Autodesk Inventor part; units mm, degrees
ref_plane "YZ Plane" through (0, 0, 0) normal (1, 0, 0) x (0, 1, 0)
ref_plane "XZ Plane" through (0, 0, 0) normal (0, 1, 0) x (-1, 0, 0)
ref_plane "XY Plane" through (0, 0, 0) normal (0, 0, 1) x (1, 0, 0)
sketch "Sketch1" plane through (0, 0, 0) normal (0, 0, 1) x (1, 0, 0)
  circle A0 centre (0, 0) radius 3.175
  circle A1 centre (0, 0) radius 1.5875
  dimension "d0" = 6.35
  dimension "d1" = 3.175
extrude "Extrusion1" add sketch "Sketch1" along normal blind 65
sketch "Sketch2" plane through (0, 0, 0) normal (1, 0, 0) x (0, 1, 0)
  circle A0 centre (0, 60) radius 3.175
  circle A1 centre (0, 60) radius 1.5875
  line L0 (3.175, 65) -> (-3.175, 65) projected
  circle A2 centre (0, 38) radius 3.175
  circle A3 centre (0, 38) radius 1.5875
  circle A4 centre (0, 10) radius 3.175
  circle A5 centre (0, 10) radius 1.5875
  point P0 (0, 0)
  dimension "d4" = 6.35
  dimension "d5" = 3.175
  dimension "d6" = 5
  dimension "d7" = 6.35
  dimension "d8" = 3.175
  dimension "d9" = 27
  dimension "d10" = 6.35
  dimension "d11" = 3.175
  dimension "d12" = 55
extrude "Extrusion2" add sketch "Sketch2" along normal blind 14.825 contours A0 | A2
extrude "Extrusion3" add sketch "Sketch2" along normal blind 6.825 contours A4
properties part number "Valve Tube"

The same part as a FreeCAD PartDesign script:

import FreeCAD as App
import Part
import Sketcher
from FreeCAD import Vector
Q = App.Units.Quantity

doc = App.newDocument("Part")
body = doc.addObject("PartDesign::Body", "Body")

# Sketch on XY plane
sketch1 = doc.addObject("Sketcher::SketchObject", "Sketch")
body.addObject(sketch1)
sketch1.AttachmentSupport = (doc.XY_Plane, [""])
sketch1.MapMode = "FlatFace"
sketch1.addGeometry(Part.Circle(Vector(0, 0, 0), Vector(0, 0, 1), 3.175), False)
sketch1.addGeometry(Part.Circle(Vector(0, 0, 0), Vector(0, 0, 1), 1.5875), False)
sketch1.addConstraint(Sketcher.Constraint("Coincident", 0, 3, -1, 1))
sketch1.addConstraint(Sketcher.Constraint("Coincident", 1, 3, -1, 1))
sketch1.addConstraint(Sketcher.Constraint("Diameter", 0, Q("0.25 in")))
sketch1.addConstraint(Sketcher.Constraint("Diameter", 1, Q("0.125 in")))
pad1 = doc.addObject("PartDesign::Pad", "Pad")
body.addObject(pad1)
pad1.Profile = sketch1
pad1.Length = 65

# Sketch on YZ plane
sketch2 = doc.addObject("Sketcher::SketchObject", "Sketch001")
body.addObject(sketch2)
sketch2.AttachmentSupport = (doc.YZ_Plane, [""])
sketch2.MapMode = "FlatFace"
sketch2.addGeometry(Part.Circle(Vector(0, 60, 0), Vector(0, 0, 1), 3.175), False)
sketch2.addGeometry(Part.Circle(Vector(0, 60, 0), Vector(0, 0, 1), 1.5875), False)
sketch2.addGeometry(Part.Circle(Vector(0, 38, 0), Vector(0, 0, 1), 3.175), False)
sketch2.addGeometry(Part.Circle(Vector(0, 38, 0), Vector(0, 0, 1), 1.5875), False)
sketch2.addConstraint(Sketcher.Constraint("Coincident", 1, 3, 0, 3))
sketch2.addConstraint(Sketcher.Constraint("Coincident", 3, 3, 2, 3))
sketch2.addConstraint(Sketcher.Constraint("Equal", 0, 2))
sketch2.addConstraint(Sketcher.Constraint("Equal", 1, 3))
sketch2.addConstraint(Sketcher.Constraint("PointOnObject", 0, 3, -2))
sketch2.addConstraint(Sketcher.Constraint("PointOnObject", 2, 3, -2))
sketch2.addConstraint(Sketcher.Constraint("Diameter", 0, Q("0.25 in")))
sketch2.addConstraint(Sketcher.Constraint("Diameter", 1, Q("0.125 in")))
sketch2.addConstraint(Sketcher.Constraint("DistanceY", -1, 1, 0, 3, Q("2.3622 in")))
sketch2.addConstraint(Sketcher.Constraint("DistanceY", -1, 1, 2, 3, 38.0))
pad2 = doc.addObject("PartDesign::Pad", "Pad001")
body.addObject(pad2)
pad2.Profile = sketch2
pad2.Length = 14.825

# Sketch on YZ plane
sketch3 = doc.addObject("Sketcher::SketchObject", "Sketch002")
body.addObject(sketch3)
sketch3.AttachmentSupport = (doc.YZ_Plane, [""])
sketch3.MapMode = "FlatFace"
sketch3.addGeometry(Part.Circle(Vector(0, 10, 0), Vector(0, 0, 1), 3.175), False)
sketch3.addGeometry(Part.Circle(Vector(0, 10, 0), Vector(0, 0, 1), 1.5875), False)
sketch3.addConstraint(Sketcher.Constraint("Coincident", 1, 3, 0, 3))
sketch3.addConstraint(Sketcher.Constraint("PointOnObject", 0, 3, -2))
sketch3.addConstraint(Sketcher.Constraint("Diameter", 0, Q("0.25 in")))
sketch3.addConstraint(Sketcher.Constraint("Diameter", 1, Q("0.125 in")))
sketch3.addConstraint(Sketcher.Constraint("DistanceY", -1, 1, 0, 3, Q("0.3937 in")))
pad3 = doc.addObject("PartDesign::Pad", "Pad002")
body.addObject(pad3)
pad3.Profile = sketch3
pad3.Length = Q("0.2687008 in")

doc.recompute()
